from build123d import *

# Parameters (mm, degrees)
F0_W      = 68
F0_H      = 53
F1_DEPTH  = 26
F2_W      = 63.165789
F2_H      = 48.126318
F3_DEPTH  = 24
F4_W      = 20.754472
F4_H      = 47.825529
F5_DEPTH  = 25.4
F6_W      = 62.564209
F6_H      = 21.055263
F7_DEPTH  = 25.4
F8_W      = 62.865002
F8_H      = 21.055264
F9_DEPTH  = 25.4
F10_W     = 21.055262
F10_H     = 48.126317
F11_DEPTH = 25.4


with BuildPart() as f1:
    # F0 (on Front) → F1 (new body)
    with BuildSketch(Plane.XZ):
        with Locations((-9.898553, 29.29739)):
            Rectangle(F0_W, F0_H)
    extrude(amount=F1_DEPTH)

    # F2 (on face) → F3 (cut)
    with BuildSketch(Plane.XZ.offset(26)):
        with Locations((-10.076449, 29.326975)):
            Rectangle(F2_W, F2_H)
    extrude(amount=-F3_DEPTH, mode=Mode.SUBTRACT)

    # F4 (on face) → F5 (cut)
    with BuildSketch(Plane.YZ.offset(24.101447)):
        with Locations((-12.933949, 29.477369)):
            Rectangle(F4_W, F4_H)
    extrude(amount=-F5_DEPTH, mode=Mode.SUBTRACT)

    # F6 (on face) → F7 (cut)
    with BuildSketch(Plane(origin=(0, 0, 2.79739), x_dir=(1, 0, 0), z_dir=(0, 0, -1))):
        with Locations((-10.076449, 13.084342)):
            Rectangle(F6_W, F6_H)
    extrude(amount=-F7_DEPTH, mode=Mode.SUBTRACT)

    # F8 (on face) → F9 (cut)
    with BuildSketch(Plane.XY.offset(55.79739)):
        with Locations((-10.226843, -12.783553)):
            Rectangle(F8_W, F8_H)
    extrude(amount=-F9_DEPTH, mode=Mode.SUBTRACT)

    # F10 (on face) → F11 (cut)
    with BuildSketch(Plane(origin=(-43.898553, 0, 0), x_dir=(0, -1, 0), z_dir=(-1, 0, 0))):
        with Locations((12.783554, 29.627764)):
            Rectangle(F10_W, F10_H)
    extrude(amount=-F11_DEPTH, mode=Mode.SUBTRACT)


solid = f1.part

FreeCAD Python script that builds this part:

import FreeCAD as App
import Part
import Sketcher
from FreeCAD import Vector


def add_polygon(sketch, points):
    """Adds a closed chain of lines whose ends are joined by coincident constraints."""
    first, n = sketch.GeometryCount, len(points)
    for a, b in zip(points, points[1:] + points[:1]):
        sketch.addGeometry(Part.LineSegment(App.Vector(*a, 0), App.Vector(*b, 0)), False)
    for i in range(n):
        sketch.addConstraint(Sketcher.Constraint("Coincident", first + i, 2, first + (i + 1) % n, 1))

doc = App.newDocument("Part")
body = doc.addObject("PartDesign::Body", "Body")

sketch1 = body.newObject("Sketcher::SketchObject", "Sketch")
sketch1.AttachmentSupport = (doc.getObject("XZ_Plane"), [""])
sketch1.MapMode = "FlatFace"
add_polygon(sketch1, [(-44, 56), (-44, 3), (24, 3), (24, 56)])
sketch1.addConstraint([
    Sketcher.Constraint("Vertical", 0),
    Sketcher.Constraint("Horizontal", 1),
    Sketcher.Constraint("Vertical", 2),
    Sketcher.Constraint("Horizontal", 3),
    Sketcher.Constraint("DistanceX", 1, 1, 1, 2, 68.0),
    Sketcher.Constraint("DistanceY", 0, 2, 0, 1, 53.0),
    Sketcher.Constraint("DistanceY", -1, 1, 0, 2, 2.79739),
    Sketcher.Constraint("DistanceX", 0, 2, -1, 1, 43.898553),
])
pad1 = body.newObject("PartDesign::Pad", "Pad")
pad1.Profile = sketch1
pad1.Length = 26

sketch2 = body.newObject("Sketcher::SketchObject", "Sketch001")
sketch2.AttachmentSupport = (doc.getObject("XZ_Plane"), [""])
sketch2.MapMode = "FlatFace"
sketch2.AttachmentOffset = App.Placement(Vector(0, 0, 26), App.Rotation())
add_polygon(sketch2, [(-42, 53), (-42, 5), (22, 5), (22, 53)])
sketch2.addConstraint([
    Sketcher.Constraint("Vertical", 0),
    Sketcher.Constraint("Horizontal", 1),
    Sketcher.Constraint("Vertical", 2),
    Sketcher.Constraint("Horizontal", 3),
    Sketcher.Constraint("DistanceX", 1, 1, 1, 2, 63.165789),
    Sketcher.Constraint("DistanceY", 0, 2, 0, 1, 48.126318),
    Sketcher.Constraint("DistanceX", 0, 2, -1, 1, 41.659343),
    Sketcher.Constraint("DistanceY", -1, 1, 0, 2, 5.263816),
])
pocket1 = body.newObject("PartDesign::Pocket", "Pocket")
pocket1.Profile = sketch2
pocket1.Length = 24

sketch3 = body.newObject("Sketcher::SketchObject", "Sketch002")
sketch3.AttachmentSupport = (doc.getObject("YZ_Plane"), [""])
sketch3.MapMode = "FlatFace"
sketch3.AttachmentOffset = App.Placement(Vector(0, 0, 24.101447), App.Rotation())
add_polygon(sketch3, [(-23, 53), (-23, 6), (-3, 6), (-3, 53)])
sketch3.addConstraint([
    Sketcher.Constraint("Vertical", 0),
    Sketcher.Constraint("Horizontal", 1),
    Sketcher.Constraint("Vertical", 2),
    Sketcher.Constraint("Horizontal", 3),
    Sketcher.Constraint("DistanceX", 1, 1, 1, 2, 20.754472),
    Sketcher.Constraint("DistanceY", 0, 2, 0, 1, 47.825529),
    Sketcher.Constraint("DistanceX", 0, 2, -1, 1, 23.311185),
    Sketcher.Constraint("DistanceY", -1, 1, 0, 2, 5.564604),
])
pocket2 = body.newObject("PartDesign::Pocket", "Pocket001")
pocket2.Profile = sketch3
pocket2.Length = 25.4

sketch4 = body.newObject("Sketcher::SketchObject", "Sketch003")
sketch4.AttachmentSupport = (doc.getObject("XY_Plane"), [""])
sketch4.MapMode = "FlatFace"
sketch4.AttachmentOffset = App.Placement(Vector(0, 0, 2.79739), App.Rotation())
add_polygon(sketch4, [(-41, -24), (-41, -3), (21, -3), (21, -24)])
sketch4.addConstraint([
    Sketcher.Constraint("Vertical", 0),
    Sketcher.Constraint("Horizontal", 1),
    Sketcher.Constraint("Vertical", 2),
    Sketcher.Constraint("Horizontal", 3),
    Sketcher.Constraint("DistanceX", 1, 1, 1, 2, 62.564209),
    Sketcher.Constraint("DistanceY", 0, 1, 0, 2, 21.055263),
    Sketcher.Constraint("DistanceY", 0, 2, -1, 1, 2.55671),
    Sketcher.Constraint("DistanceX", 0, 2, -1, 1, 41.358553),
])
pocket3 = body.newObject("PartDesign::Pocket", "Pocket002")
pocket3.Profile = sketch4
pocket3.Length = 25.4
pocket3.Reversed = True

sketch5 = body.newObject("Sketcher::SketchObject", "Sketch004")
sketch5.AttachmentSupport = (doc.getObject("XY_Plane"), [""])
sketch5.MapMode = "FlatFace"
sketch5.AttachmentOffset = App.Placement(Vector(0, 0, 55.79739), App.Rotation())
add_polygon(sketch5, [(-42, -2), (-42, -23), (21, -23), (21, -2)])
sketch5.addConstraint([
    Sketcher.Constraint("Vertical", 0),
    Sketcher.Constraint("Horizontal", 1),
    Sketcher.Constraint("Vertical", 2),
    Sketcher.Constraint("Horizontal", 3),
    Sketcher.Constraint("DistanceX", 1, 1, 1, 2, 62.865002),
    Sketcher.Constraint("DistanceY", 0, 2, 0, 1, 21.055264),
    Sketcher.Constraint("DistanceY", 2, 2, -1, 1, 2.255921),
    Sketcher.Constraint("DistanceX", 0, 2, -1, 1, 41.659344),
])
pocket4 = body.newObject("PartDesign::Pocket", "Pocket003")
pocket4.Profile = sketch5
pocket4.Length = 25.4

sketch6 = body.newObject("Sketcher::SketchObject", "Sketch005")
sketch6.AttachmentSupport = (doc.getObject("YZ_Plane"), [""])
sketch6.MapMode = "FlatFace"
sketch6.AttachmentOffset = App.Placement(Vector(0, 0, -43.898553), App.Rotation())
add_polygon(sketch6, [(-2, 54), (-2, 6), (-23, 6), (-23, 54)])
sketch6.addConstraint([
    Sketcher.Constraint("Vertical", 0),
    Sketcher.Constraint("Horizontal", 1),
    Sketcher.Constraint("Vertical", 2),
    Sketcher.Constraint("Horizontal", 3),
    Sketcher.Constraint("DistanceX", 1, 2, 1, 1, 21.055262),
    Sketcher.Constraint("DistanceY", 0, 2, 0, 1, 48.126317),
    Sketcher.Constraint("DistanceX", 0, 2, -1, 1, 2.255923),
    Sketcher.Constraint("DistanceY", -1, 1, 0, 2, 5.564605),
])
pocket5 = body.newObject("PartDesign::Pocket", "Pocket004")
pocket5.Profile = sketch6
pocket5.Length = 25.4
pocket5.Reversed = True

doc.recompute()
